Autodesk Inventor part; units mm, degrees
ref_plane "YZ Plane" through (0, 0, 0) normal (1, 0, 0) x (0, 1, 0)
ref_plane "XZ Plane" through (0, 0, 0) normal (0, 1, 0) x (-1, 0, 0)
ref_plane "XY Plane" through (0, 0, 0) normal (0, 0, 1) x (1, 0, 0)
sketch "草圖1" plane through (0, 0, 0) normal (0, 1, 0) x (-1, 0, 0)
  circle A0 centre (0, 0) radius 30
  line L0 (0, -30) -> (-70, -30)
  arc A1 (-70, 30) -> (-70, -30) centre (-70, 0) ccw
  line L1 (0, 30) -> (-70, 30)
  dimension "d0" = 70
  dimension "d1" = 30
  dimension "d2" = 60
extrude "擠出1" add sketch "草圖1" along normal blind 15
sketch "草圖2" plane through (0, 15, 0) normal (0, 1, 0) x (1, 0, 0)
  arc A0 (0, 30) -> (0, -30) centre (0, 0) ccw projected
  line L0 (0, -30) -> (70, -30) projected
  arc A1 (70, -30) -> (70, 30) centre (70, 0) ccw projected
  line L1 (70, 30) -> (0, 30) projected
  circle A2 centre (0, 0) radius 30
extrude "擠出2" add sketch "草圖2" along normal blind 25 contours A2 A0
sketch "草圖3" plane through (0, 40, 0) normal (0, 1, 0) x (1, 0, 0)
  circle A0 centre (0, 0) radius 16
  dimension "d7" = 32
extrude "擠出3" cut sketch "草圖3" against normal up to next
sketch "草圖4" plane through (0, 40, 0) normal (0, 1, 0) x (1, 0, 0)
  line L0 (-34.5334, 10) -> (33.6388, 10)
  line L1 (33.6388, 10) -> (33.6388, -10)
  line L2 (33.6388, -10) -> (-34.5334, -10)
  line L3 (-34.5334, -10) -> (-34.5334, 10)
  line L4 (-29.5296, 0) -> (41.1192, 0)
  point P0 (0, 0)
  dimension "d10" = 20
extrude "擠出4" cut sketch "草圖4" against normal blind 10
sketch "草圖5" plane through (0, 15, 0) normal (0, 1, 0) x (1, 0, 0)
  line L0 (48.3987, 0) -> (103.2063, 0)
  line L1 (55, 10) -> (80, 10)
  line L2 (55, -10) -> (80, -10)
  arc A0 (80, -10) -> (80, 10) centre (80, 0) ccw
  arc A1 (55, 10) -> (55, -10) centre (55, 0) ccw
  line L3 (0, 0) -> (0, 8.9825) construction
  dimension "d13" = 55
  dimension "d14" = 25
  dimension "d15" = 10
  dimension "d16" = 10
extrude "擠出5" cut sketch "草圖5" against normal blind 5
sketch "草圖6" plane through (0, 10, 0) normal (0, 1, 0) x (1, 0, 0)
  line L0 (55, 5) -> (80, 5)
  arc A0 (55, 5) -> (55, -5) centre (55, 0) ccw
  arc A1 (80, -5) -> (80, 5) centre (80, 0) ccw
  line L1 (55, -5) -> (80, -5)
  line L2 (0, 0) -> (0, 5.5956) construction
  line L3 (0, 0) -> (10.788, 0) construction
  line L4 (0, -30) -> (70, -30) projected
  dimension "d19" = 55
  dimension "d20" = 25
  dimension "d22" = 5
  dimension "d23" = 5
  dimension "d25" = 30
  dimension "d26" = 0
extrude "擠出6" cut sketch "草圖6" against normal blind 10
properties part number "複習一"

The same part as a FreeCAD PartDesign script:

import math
import FreeCAD as App
import Part
import Sketcher
from FreeCAD import Vector


def add_polygon(sketch, points):
    """Adds a closed chain of lines whose ends are joined by coincident constraints."""
    first, n = sketch.GeometryCount, len(points)
    for a, b in zip(points, points[1:] + points[:1]):
        sketch.addGeometry(Part.LineSegment(App.Vector(*a, 0), App.Vector(*b, 0)), False)
    for i in range(n):
        sketch.addConstraint(Sketcher.Constraint("Coincident", first + i, 2, first + (i + 1) % n, 1))

doc = App.newDocument("Part")
params = doc.addObject("Spreadsheet::Sheet", "Params")
for row, (alias, value) in enumerate([
    ("sketch1_radius", "30 mm"),
    ("sketch1_width", "70 mm"),
    ("pad1_length", "15 mm"),
    ("sketch2_diameter", "60 mm"),
    ("pad2_length", "25 mm"),
    ("sketch3_diameter", "32 mm"),
    ("sketch4_height", "20 mm"),
    ("pocket2_length", "10 mm"),
    ("sketch5_radius", "10 mm"),
    ("sketch5_width", "25 mm"),
    ("pocket3_length", "5 mm"),
    ("sketch6_radius", "5 mm"),
    ("sketch6_width", "25 mm"),
    ("pocket4_length", "10 mm"),
], start=1):
    params.set(f"A{row}", alias)
    params.set(f"B{row}", "=" + value)
    params.setAlias(f"B{row}", alias)

body = doc.addObject("PartDesign::Body", "Body")

# Sketch on XZ plane
sketch1 = body.newObject("Sketcher::SketchObject", "Sketch")
sketch1.AttachmentSupport = (doc.getObject("XZ_Plane"), [""])
sketch1.MapMode = "FlatFace"
sketch1.addGeometry([
    Part.ArcOfCircle(Part.Circle(Vector(0, 0, 0), Vector(0, 0, 1), 30), math.radians(90), math.radians(270)),
    Part.LineSegment(Vector(0, 30, 0), Vector(70, 30, 0)),
    Part.ArcOfCircle(Part.Circle(Vector(70, 0, 0), Vector(0, 0, 1), 30), math.radians(-90), math.radians(90)),
    Part.LineSegment(Vector(70, -30, 0), Vector(0, -30, 0)),
], False)
sketch1.addConstraint([
    Sketcher.Constraint("Tangent", 0, 1, 1, 1),
    Sketcher.Constraint("Tangent", 1, 2, 2, 2),
    Sketcher.Constraint("Tangent", 2, 1, 3, 1),
    Sketcher.Constraint("Tangent", 3, 2, 0, 2),
    Sketcher.Constraint("Horizontal", 1),
    Sketcher.Constraint("Horizontal", 3),
    Sketcher.Constraint("Coincident", 0, 3, -1, 1),
    Sketcher.Constraint("Radius", 0, 30.0),
    Sketcher.Constraint("DistanceX", 1, 1, 1, 2, 70.0),
])
sketch1.setExpression("Constraints[7]", "Params.sketch1_radius")
sketch1.setExpression("Constraints[8]", "Params.sketch1_width")
pad1 = body.newObject("PartDesign::Pad", "Pad")
pad1.Profile = sketch1
pad1.setExpression("Length", "Params.pad1_length")
pad1.Reversed = True

# Sketch on XZ plane
sketch2 = body.newObject("Sketcher::SketchObject", "Sketch001")
sketch2.AttachmentSupport = (doc.getObject("XZ_Plane"), [""])
sketch2.MapMode = "FlatFace"
sketch2.AttachmentOffset = App.Placement(Vector(0, 0, -15), App.Rotation())
sketch2.addGeometry(Part.Circle(Vector(0, 0, 0), Vector(0, 0, 1), 30), False)
sketch2.addConstraint([
    Sketcher.Constraint("Coincident", 0, 3, -1, 1),
    Sketcher.Constraint("Diameter", 0, 60.0),
])
sketch2.setExpression("Constraints[1]", "Params.sketch2_diameter")
pad2 = body.newObject("PartDesign::Pad", "Pad001")
pad2.Profile = sketch2
pad2.setExpression("Length", "Params.pad2_length")
pad2.Reversed = True

# Sketch on XZ plane
sketch3 = body.newObject("Sketcher::SketchObject", "Sketch002")
sketch3.AttachmentSupport = (doc.getObject("XZ_Plane"), [""])
sketch3.MapMode = "FlatFace"
sketch3.AttachmentOffset = App.Placement(Vector(0, 0, -40), App.Rotation())
sketch3.addGeometry(Part.Circle(Vector(0, 0, 0), Vector(0, 0, 1), 16), False)
sketch3.addConstraint([
    Sketcher.Constraint("Coincident", 0, 3, -1, 1),
    Sketcher.Constraint("Diameter", 0, 32.0),
])
sketch3.setExpression("Constraints[1]", "Params.sketch3_diameter")
pocket1 = body.newObject("PartDesign::Pocket", "Pocket")
pocket1.Profile = sketch3
pocket1.Type = "UpToFirst"
pocket1.Reversed = True

# Sketch on XZ plane
sketch4 = body.newObject("Sketcher::SketchObject", "Sketch003")
sketch4.AttachmentSupport = (doc.getObject("XZ_Plane"), [""])
sketch4.MapMode = "FlatFace"
sketch4.AttachmentOffset = App.Placement(Vector(0, 0, -40), App.Rotation())
add_polygon(sketch4, [(34, -10), (-35, -10), (-35, 10), (34, 10)])  # lines 0-3
sketch4.addConstraint([
    Sketcher.Constraint("Horizontal", 0),
    Sketcher.Constraint("Vertical", 1),
    Sketcher.Constraint("Horizontal", 2),
    Sketcher.Constraint("Vertical", 3),
    Sketcher.Constraint("DistanceY", 1, 1, 1, 2, 20.0),
    Sketcher.Constraint("DistanceY", 0, 2, -1, 1, 10.0),
    Sketcher.Constraint("DistanceX", 0, 2, 0, 1, 68.1722),
    Sketcher.Constraint("DistanceX", 0, 2, -1, 1, 34.5334),
])
sketch4.setExpression("Constraints[8]", "Params.sketch4_height")
pocket2 = body.newObject("PartDesign::Pocket", "Pocket001")
pocket2.Profile = sketch4
pocket2.setExpression("Length", "Params.pocket2_length")
pocket2.Reversed = True

# Sketch on XZ plane
sketch5 = body.newObject("Sketcher::SketchObject", "Sketch004")
sketch5.AttachmentSupport = (doc.getObject("XZ_Plane"), [""])
sketch5.MapMode = "FlatFace"
sketch5.AttachmentOffset = App.Placement(Vector(0, 0, -15), App.Rotation())
sketch5.addGeometry([
    Part.LineSegment(Vector(80, -10, 0), Vector(55, -10, 0)),
    Part.ArcOfCircle(Part.Circle(Vector(55, 0, 0), Vector(0, 0, 1), 10), math.radians(90), math.radians(270)),
    Part.LineSegment(Vector(55, 10, 0), Vector(80, 10, 0)),
    Part.ArcOfCircle(Part.Circle(Vector(80, 0, 0), Vector(0, 0, 1), 10), math.radians(-90), math.radians(90)),
], False)
sketch5.addConstraint([
    Sketcher.Constraint("Tangent", 0, 2, 1, 2),
    Sketcher.Constraint("Tangent", 1, 1, 2, 1),
    Sketcher.Constraint("Tangent", 2, 2, 3, 2),
    Sketcher.Constraint("Tangent", 3, 1, 0, 1),
    Sketcher.Constraint("Horizontal", 0),
    Sketcher.Constraint("Horizontal", 2),
    Sketcher.Constraint("PointOnObject", 1, 3, -1),
    Sketcher.Constraint("Radius", 1, 10.0),
    Sketcher.Constraint("DistanceX", 0, 2, 0, 1, 25.0),
    Sketcher.Constraint("DistanceX", -1, 1, 1, 3, 55.0),
])
sketch5.setExpression("Constraints[7]", "Params.sketch5_radius")
sketch5.setExpression("Constraints[8]", "Params.sketch5_width")
pocket3 = body.newObject("PartDesign::Pocket", "Pocket002")
pocket3.Profile = sketch5
pocket3.setExpression("Length", "Params.pocket3_length")
pocket3.Reversed = True

# Sketch on XZ plane
sketch6 = body.newObject("Sketcher::SketchObject", "Sketch005")
sketch6.AttachmentSupport = (doc.getObject("XZ_Plane"), [""])
sketch6.MapMode = "FlatFace"
sketch6.AttachmentOffset = App.Placement(Vector(0, 0, -10), App.Rotation())
sketch6.addGeometry([
    Part.LineSegment(Vector(80, -5, 0), Vector(55, -5, 0)),
    Part.ArcOfCircle(Part.Circle(Vector(55, 0, 0), Vector(0, 0, 1), 5), math.radians(90), math.radians(270)),
    Part.LineSegment(Vector(55, 5, 0), Vector(80, 5, 0)),
    Part.ArcOfCircle(Part.Circle(Vector(80, 0, 0), Vector(0, 0, 1), 5), math.radians(-90), math.radians(90)),
], False)
sketch6.addConstraint([
    Sketcher.Constraint("Tangent", 0, 2, 1, 2),
    Sketcher.Constraint("Tangent", 1, 1, 2, 1),
    Sketcher.Constraint("Tangent", 2, 2, 3, 2),
    Sketcher.Constraint("Tangent", 3, 1, 0, 1),
    Sketcher.Constraint("Horizontal", 0),
    Sketcher.Constraint("Horizontal", 2),
    Sketcher.Constraint("PointOnObject", 1, 3, -1),
    Sketcher.Constraint("Radius", 1, 5.0),
    Sketcher.Constraint("DistanceX", 0, 2, 0, 1, 25.0),
    Sketcher.Constraint("DistanceX", -1, 1, 1, 3, 55.0),
])
sketch6.setExpression("Constraints[7]", "Params.sketch6_radius")
sketch6.setExpression("Constraints[8]", "Params.sketch6_width")
pocket4 = body.newObject("PartDesign::Pocket", "Pocket003")
pocket4.Profile = sketch6
pocket4.setExpression("Length", "Params.pocket4_length")
pocket4.Reversed = True

doc.recompute()
